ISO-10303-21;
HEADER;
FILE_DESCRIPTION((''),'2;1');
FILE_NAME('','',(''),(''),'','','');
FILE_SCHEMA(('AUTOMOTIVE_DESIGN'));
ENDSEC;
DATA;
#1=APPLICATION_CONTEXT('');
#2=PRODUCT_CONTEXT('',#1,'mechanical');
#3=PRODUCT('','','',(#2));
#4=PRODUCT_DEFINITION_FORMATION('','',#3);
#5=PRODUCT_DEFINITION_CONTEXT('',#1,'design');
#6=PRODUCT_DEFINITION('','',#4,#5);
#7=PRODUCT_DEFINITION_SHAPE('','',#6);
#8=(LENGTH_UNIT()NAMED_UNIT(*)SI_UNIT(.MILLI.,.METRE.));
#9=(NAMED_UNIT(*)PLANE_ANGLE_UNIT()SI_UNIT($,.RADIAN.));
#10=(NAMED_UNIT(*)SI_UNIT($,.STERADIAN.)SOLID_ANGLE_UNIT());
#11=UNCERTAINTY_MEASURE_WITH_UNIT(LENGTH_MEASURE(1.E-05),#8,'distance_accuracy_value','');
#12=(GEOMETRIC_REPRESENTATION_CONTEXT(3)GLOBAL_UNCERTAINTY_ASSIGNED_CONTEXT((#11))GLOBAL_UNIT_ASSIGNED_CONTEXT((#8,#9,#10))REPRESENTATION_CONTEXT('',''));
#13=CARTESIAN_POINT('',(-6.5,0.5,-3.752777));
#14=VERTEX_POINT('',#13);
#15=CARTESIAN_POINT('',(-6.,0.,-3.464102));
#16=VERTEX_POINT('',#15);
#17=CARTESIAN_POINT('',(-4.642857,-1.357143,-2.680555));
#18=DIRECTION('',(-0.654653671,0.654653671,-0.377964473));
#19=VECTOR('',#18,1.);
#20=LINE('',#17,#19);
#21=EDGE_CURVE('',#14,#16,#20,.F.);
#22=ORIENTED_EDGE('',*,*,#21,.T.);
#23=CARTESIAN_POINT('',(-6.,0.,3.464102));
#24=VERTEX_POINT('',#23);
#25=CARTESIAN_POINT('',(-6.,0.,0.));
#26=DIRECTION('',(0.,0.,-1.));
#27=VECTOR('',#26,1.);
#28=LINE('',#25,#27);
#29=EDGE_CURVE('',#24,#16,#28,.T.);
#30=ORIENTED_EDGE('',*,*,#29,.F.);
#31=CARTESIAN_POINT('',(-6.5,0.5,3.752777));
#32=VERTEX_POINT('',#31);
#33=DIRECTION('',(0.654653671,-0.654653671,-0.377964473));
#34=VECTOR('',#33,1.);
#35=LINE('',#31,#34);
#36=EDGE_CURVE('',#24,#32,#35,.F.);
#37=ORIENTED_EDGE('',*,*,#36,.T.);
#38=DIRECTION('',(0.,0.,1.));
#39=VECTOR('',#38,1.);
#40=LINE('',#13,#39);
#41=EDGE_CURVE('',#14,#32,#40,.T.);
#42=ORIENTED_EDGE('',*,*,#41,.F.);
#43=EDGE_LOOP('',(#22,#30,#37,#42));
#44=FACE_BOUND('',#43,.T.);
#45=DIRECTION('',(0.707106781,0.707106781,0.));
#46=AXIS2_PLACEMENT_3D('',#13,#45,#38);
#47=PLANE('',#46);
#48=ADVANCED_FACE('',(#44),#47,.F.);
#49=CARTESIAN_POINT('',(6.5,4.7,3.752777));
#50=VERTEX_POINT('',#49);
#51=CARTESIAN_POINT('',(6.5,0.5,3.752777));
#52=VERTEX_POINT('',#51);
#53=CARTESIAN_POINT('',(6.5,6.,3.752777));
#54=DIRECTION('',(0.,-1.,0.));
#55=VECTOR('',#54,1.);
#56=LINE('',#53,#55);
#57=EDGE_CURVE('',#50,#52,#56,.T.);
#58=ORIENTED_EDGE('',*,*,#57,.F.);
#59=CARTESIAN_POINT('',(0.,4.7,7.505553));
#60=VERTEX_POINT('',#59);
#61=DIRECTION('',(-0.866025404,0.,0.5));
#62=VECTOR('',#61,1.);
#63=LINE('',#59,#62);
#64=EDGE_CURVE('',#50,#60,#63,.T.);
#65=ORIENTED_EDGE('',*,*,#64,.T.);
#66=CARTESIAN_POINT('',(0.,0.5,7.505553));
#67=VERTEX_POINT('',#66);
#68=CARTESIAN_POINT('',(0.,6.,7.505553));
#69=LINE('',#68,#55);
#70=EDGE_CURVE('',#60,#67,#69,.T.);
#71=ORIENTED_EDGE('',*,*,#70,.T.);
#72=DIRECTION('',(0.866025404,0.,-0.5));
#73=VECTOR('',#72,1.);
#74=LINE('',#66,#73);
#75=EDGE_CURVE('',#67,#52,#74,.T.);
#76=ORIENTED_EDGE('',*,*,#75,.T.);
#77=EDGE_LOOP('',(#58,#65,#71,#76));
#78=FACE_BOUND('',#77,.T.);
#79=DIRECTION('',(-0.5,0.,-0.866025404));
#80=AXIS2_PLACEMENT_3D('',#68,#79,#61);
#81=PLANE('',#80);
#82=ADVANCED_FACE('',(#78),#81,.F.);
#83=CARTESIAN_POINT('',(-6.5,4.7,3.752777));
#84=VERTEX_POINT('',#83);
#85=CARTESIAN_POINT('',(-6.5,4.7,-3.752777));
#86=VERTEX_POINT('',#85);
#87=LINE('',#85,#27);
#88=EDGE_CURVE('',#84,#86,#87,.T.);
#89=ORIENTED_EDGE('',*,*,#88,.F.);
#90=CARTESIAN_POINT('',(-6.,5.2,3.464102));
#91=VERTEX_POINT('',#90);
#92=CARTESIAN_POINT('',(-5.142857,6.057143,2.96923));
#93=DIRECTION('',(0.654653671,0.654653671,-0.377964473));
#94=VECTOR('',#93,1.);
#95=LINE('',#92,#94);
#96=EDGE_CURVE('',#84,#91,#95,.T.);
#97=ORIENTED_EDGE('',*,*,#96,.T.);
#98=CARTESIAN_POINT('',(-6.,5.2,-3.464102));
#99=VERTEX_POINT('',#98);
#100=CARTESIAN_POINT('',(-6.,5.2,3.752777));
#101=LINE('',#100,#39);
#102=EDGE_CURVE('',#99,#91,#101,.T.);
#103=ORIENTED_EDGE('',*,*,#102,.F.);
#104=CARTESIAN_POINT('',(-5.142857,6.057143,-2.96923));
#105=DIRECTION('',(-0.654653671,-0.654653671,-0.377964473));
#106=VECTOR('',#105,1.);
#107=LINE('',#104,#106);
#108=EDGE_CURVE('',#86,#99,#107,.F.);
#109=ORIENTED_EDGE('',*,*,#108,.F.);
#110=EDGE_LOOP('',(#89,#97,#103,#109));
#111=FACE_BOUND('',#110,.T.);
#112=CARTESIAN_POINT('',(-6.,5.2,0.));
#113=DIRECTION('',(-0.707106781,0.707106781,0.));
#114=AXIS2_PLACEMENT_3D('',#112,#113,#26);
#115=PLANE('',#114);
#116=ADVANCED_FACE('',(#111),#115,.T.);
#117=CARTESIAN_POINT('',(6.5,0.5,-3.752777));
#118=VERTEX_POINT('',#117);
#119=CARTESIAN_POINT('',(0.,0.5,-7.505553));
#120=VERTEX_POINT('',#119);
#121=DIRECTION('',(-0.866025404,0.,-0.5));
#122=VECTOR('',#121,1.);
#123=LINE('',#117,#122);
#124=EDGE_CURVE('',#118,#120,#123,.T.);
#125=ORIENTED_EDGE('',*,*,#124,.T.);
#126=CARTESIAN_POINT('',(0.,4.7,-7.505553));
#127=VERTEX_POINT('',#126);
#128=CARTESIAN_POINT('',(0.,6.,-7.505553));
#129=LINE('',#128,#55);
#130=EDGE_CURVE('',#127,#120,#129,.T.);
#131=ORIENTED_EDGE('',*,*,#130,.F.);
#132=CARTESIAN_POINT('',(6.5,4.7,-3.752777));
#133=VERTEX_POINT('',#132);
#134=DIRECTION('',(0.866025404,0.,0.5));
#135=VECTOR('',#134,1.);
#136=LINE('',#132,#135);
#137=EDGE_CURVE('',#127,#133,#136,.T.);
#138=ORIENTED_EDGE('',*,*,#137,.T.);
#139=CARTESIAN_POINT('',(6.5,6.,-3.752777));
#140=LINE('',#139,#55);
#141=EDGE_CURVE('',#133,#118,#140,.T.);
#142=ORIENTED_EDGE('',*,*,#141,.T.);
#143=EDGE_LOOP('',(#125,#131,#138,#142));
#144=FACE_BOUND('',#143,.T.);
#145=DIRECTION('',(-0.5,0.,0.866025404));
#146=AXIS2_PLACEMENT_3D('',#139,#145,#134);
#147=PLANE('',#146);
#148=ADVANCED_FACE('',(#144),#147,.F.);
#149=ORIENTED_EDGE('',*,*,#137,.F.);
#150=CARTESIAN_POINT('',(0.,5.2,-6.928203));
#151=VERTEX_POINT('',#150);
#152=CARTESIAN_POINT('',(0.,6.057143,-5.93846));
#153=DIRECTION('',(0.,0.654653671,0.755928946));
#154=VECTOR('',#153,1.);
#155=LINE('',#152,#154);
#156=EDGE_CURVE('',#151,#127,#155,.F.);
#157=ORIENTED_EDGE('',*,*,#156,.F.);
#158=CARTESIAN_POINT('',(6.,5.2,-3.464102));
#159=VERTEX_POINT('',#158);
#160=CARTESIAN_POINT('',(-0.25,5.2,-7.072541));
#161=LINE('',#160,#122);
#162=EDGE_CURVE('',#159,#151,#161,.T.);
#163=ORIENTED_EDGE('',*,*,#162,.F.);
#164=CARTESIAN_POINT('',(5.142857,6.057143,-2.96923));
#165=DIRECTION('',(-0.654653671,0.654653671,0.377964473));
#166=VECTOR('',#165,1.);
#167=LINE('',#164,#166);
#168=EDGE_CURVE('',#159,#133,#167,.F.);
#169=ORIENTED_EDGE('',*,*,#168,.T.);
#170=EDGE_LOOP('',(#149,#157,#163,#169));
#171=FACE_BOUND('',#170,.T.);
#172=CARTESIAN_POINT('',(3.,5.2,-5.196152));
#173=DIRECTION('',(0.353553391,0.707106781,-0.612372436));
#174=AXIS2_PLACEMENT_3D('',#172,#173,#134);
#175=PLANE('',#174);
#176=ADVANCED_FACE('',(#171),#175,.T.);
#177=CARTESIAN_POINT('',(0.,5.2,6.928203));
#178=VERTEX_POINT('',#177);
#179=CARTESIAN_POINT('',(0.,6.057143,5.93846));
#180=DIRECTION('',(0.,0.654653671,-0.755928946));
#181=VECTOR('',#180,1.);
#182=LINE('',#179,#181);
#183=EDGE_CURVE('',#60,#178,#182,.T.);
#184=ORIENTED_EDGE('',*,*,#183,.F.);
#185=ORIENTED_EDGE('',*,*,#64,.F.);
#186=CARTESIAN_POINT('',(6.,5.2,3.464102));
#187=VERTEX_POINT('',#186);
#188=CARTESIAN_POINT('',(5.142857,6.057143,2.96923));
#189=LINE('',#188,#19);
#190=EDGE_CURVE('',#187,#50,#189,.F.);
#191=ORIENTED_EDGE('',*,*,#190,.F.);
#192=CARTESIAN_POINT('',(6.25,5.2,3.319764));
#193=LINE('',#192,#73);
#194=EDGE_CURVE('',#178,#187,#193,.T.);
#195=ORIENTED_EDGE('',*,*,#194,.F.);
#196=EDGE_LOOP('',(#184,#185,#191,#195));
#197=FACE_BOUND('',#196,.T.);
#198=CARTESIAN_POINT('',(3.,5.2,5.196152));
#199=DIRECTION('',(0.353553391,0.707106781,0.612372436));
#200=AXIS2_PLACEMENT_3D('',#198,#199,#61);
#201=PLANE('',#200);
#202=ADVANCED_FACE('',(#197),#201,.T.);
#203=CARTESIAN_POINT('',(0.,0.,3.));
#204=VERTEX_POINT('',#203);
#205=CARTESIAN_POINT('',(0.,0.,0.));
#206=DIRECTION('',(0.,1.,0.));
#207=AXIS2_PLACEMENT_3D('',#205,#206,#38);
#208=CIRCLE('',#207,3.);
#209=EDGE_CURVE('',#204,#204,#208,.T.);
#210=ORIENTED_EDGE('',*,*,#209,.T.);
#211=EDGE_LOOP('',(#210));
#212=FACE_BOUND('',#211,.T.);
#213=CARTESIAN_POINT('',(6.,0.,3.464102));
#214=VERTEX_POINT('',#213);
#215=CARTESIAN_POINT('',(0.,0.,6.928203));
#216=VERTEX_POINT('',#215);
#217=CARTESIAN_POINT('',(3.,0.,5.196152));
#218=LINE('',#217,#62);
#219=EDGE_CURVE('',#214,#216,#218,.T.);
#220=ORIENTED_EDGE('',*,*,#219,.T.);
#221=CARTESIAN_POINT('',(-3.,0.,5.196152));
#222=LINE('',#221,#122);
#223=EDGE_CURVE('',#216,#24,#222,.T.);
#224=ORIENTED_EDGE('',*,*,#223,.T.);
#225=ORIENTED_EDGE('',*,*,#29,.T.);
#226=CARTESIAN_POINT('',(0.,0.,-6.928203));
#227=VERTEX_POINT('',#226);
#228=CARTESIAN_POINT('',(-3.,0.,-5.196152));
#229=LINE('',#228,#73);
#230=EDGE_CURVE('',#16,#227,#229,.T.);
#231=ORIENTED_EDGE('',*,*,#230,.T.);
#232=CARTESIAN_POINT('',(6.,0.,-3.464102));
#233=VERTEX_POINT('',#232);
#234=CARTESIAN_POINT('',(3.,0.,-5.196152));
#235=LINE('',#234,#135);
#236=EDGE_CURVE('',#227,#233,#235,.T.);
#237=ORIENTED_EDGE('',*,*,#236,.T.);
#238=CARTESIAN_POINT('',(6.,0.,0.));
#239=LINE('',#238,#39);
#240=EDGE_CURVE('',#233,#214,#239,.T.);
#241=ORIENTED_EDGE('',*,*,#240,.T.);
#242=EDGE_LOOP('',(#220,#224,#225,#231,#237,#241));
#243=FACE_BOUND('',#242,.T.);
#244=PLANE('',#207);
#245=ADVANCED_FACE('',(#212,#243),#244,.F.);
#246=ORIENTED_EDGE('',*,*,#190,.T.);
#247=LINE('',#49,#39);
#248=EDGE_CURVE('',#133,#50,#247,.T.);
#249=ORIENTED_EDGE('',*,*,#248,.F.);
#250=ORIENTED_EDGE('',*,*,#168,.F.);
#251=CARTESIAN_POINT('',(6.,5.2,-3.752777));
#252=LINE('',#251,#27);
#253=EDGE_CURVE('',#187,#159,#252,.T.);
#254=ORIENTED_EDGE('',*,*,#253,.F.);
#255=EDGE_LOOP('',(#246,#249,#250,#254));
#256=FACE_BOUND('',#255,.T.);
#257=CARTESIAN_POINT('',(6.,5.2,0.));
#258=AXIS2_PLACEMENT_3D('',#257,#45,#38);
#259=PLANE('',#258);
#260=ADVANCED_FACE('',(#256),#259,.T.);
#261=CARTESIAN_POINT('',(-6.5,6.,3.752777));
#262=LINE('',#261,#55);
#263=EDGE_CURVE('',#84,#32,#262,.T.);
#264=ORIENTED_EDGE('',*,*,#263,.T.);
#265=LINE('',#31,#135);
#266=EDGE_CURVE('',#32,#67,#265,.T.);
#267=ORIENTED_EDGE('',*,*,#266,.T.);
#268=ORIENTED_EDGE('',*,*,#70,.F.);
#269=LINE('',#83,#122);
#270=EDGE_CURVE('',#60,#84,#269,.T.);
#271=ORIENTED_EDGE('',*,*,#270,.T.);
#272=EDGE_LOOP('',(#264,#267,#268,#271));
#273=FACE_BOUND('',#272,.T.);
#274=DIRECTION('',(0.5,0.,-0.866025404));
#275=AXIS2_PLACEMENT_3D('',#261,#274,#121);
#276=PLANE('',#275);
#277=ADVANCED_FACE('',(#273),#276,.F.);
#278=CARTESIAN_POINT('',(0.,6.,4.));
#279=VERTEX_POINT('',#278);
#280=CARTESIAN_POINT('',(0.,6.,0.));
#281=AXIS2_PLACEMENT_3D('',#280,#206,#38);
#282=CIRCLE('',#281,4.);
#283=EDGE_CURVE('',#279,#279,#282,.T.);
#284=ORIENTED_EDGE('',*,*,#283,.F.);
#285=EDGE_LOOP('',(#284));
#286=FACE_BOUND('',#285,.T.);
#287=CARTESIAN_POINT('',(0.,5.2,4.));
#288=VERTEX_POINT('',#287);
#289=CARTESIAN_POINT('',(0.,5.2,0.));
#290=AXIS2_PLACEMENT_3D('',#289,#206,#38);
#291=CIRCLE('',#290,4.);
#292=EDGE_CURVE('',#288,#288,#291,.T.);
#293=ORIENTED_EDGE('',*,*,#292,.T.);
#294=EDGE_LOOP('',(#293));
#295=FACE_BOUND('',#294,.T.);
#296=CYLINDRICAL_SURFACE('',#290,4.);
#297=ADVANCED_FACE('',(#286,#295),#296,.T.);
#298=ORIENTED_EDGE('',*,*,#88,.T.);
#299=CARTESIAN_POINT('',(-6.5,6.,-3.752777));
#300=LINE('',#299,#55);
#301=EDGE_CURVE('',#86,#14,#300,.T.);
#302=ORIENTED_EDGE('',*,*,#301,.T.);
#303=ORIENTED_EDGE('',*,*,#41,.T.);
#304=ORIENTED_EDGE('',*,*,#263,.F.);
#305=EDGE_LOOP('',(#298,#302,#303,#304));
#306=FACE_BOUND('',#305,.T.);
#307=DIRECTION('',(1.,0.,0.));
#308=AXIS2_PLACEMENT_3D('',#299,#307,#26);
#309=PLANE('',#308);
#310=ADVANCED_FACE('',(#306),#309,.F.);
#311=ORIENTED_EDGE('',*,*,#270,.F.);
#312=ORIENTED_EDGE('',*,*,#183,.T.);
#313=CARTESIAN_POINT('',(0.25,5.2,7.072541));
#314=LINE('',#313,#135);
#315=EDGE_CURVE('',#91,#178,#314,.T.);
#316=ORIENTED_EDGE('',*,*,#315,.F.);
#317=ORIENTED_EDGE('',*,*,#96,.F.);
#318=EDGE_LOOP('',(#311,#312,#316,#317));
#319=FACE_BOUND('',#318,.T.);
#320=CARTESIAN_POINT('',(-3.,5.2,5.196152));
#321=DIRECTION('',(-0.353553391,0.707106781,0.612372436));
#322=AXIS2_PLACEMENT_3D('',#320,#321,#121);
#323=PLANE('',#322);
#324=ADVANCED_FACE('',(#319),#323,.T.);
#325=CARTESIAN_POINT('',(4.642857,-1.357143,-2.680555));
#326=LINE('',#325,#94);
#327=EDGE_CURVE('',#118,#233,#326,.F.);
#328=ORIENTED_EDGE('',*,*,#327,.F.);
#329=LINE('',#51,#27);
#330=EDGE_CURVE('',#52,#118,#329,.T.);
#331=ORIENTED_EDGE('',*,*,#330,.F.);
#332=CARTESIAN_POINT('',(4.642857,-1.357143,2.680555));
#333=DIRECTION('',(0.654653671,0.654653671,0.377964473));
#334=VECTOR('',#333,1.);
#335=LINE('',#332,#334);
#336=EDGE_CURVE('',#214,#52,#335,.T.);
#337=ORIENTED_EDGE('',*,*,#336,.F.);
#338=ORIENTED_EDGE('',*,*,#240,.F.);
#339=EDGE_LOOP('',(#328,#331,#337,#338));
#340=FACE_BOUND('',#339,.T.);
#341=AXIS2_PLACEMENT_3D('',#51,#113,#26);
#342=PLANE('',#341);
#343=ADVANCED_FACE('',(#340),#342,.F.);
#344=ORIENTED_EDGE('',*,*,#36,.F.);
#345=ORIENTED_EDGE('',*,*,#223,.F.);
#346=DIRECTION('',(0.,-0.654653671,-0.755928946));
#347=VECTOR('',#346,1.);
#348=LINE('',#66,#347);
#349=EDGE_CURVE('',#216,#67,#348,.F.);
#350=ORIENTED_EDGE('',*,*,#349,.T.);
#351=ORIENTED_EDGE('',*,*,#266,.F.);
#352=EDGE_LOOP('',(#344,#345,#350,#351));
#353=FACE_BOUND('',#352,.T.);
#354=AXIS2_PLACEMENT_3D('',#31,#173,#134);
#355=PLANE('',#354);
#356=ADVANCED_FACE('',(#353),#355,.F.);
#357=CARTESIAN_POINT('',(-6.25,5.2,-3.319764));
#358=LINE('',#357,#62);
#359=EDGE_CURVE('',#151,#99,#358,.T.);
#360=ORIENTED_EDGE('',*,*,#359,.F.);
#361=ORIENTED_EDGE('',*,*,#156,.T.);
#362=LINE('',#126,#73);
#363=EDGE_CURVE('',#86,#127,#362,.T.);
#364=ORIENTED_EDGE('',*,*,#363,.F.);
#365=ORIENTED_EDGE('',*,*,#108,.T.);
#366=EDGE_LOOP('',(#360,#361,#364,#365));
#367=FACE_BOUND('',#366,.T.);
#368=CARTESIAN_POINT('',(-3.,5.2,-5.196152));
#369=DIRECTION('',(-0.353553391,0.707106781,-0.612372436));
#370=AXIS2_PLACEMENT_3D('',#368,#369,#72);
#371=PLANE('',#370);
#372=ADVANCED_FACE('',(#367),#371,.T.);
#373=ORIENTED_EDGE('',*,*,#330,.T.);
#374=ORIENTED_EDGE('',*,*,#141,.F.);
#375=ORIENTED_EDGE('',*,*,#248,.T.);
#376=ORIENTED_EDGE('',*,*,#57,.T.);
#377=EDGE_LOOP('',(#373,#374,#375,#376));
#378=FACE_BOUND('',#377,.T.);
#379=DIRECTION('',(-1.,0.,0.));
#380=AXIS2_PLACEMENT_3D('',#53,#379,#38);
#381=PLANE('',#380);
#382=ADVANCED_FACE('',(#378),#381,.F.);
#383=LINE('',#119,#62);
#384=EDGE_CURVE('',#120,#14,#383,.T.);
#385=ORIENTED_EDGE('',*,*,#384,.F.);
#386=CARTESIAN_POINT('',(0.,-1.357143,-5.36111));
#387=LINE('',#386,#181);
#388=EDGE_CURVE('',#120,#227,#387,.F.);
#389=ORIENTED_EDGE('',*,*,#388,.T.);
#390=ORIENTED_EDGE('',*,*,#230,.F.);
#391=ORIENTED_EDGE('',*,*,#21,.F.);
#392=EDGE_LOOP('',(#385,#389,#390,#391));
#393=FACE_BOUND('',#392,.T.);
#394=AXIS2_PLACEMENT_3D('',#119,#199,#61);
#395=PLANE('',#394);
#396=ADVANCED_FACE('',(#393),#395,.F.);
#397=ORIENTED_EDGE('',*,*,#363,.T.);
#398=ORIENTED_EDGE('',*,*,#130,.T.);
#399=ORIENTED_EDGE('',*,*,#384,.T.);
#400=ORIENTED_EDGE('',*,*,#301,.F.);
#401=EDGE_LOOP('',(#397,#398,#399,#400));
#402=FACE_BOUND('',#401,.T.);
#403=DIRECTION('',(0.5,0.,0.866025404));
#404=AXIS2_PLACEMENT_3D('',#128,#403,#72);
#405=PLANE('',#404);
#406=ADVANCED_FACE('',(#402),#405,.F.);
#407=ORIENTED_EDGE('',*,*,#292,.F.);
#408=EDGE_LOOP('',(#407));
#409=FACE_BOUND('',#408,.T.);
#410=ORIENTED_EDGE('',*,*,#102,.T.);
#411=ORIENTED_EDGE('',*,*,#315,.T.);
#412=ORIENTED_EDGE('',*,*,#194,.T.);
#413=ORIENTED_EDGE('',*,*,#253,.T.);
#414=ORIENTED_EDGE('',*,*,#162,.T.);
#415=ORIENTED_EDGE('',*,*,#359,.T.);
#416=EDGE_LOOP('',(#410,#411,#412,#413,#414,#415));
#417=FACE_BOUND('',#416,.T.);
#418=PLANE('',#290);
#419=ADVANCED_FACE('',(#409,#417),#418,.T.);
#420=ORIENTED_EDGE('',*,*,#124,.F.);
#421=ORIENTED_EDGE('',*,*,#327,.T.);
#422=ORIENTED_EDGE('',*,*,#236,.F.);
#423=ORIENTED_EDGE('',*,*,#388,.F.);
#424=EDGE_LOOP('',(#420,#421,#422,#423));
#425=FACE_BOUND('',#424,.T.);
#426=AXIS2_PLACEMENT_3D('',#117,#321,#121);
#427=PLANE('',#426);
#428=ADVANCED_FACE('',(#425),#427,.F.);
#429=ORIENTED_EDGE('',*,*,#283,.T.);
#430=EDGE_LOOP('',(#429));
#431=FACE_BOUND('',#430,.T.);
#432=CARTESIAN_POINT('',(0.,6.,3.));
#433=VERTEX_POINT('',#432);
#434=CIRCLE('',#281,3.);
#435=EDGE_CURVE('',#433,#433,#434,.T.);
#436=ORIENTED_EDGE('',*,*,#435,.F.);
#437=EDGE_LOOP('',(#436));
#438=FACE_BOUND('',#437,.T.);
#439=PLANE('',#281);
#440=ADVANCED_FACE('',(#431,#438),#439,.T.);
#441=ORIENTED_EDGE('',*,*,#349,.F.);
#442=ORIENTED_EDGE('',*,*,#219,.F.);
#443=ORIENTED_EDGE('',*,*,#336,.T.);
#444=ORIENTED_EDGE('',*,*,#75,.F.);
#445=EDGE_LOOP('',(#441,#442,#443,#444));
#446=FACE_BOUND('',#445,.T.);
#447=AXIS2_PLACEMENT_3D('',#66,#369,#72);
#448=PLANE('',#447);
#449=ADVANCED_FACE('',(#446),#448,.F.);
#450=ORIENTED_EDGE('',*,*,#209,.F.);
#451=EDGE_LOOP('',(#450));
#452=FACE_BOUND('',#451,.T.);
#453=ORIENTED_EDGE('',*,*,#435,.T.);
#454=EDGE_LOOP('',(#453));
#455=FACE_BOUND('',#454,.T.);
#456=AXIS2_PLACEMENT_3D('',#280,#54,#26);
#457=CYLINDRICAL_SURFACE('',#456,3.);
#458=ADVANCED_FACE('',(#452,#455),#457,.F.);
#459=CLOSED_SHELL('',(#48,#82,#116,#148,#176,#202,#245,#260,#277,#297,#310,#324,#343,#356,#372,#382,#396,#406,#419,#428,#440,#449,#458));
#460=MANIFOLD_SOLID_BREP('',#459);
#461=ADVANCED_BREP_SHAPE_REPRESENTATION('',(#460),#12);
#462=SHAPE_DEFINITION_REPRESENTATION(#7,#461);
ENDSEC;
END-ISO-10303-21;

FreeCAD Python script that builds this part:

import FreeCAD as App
import Part
import Sketcher
Q = App.Units.Quantity


def edges_at(feature, points):
    """Names of the edges that pass closest to the given points."""
    edges = feature.Shape.Edges
    near = lambda p: min(range(len(edges)), key=lambda i: edges[i].distToShape(Part.Vertex(*p))[0])
    return sorted({f"Edge{near(p) + 1}" for p in points})

doc = App.newDocument("Part")
body = doc.addObject("PartDesign::Body", "Body")

# Sketch on XZ plane
sketch1 = body.newObject("Sketcher::SketchObject", "Sketch")
sketch1.AttachmentSupport = (doc.getObject("XZ_Plane"), [""])
sketch1.MapMode = "FlatFace"
sketch1.addGeometry([
    Part.LineSegment(App.Vector(0, 7.505553, 0), App.Vector(6.5, 3.752777, 0)),  # 0
    Part.LineSegment(App.Vector(6.5, 3.752777, 0), App.Vector(6.5, -3.752777, 0)),  # 1
    Part.LineSegment(App.Vector(6.5, -3.752777, 0), App.Vector(0, -7.505553, 0)),  # 2
    Part.LineSegment(App.Vector(0, -7.505553, 0), App.Vector(-6.5, -3.752777, 0)),  # 3
    Part.LineSegment(App.Vector(-6.5, -3.752777, 0), App.Vector(-6.5, 3.752777, 0)),  # 4
    Part.LineSegment(App.Vector(-6.5, 3.752777, 0), App.Vector(0, 7.505553, 0)),  # 5
    Part.Circle(App.Vector(0, 0, 0), App.Vector(0, 0, 1), 3),  # 6
], False)
sketch1.addConstraint([
    Sketcher.Constraint("Coincident", 0, 2, 1, 1),
    Sketcher.Constraint("Coincident", 1, 2, 2, 1),
    Sketcher.Constraint("Coincident", 2, 2, 3, 1),
    Sketcher.Constraint("Coincident", 3, 2, 4, 1),
    Sketcher.Constraint("Coincident", 4, 2, 5, 1),
    Sketcher.Constraint("Coincident", 5, 2, 0, 1),
    Sketcher.Constraint("Vertical", 1),
    Sketcher.Constraint("Vertical", 4),
    Sketcher.Constraint("Coincident", 6, 3, -1, 1),
    Sketcher.Constraint("Symmetric", 0, 2, 3, 2, -1, 1),
    Sketcher.Constraint("Symmetric", 2, 2, 5, 2, -1, 1),
    Sketcher.Constraint("PointOnObject", 2, 2, -2),
    Sketcher.Constraint("Parallel", 2, 5),
    Sketcher.Constraint("Horizontal", 1, 2, 3, 2),
    Sketcher.Constraint("Diameter", 6, 6.0),
    Sketcher.Constraint("Angle", 0, Q("-30 deg")),
    Sketcher.Constraint("DistanceX", 3, 2, 1, 2, 13.0),
    Sketcher.Constraint("DistanceY", 1, 2, 1, 1, 7.505554),
])
pad1 = body.newObject("PartDesign::Pad", "Pad")
pad1.Profile = sketch1
pad1.Length = 6
pad1.Reversed = True

# Sketch on XZ plane
sketch2 = body.newObject("Sketcher::SketchObject", "Sketch001")
sketch2.AttachmentSupport = (doc.getObject("XZ_Plane"), [""])
sketch2.MapMode = "FlatFace"
sketch2.AttachmentOffset = App.Placement(App.Vector(0, 0, -6), App.Rotation())
sketch2.addGeometry([
    Part.LineSegment(App.Vector(-6.5, 3.752777, 0), App.Vector(0, 7.505553, 0)),  # 0
    Part.LineSegment(App.Vector(0, 7.505553, 0), App.Vector(6.5, 3.752777, 0)),  # 1
    Part.LineSegment(App.Vector(6.5, 3.752777, 0), App.Vector(6.5, -3.752777, 0)),  # 2
    Part.LineSegment(App.Vector(6.5, -3.752777, 0), App.Vector(0, -7.505553, 0)),  # 3
    Part.LineSegment(App.Vector(0, -7.505553, 0), App.Vector(-6.5, -3.752777, 0)),  # 4
    Part.LineSegment(App.Vector(-6.5, -3.752777, 0), App.Vector(-6.5, 3.752777, 0)),  # 5
    Part.Circle(App.Vector(0, 0, 0), App.Vector(0, 0, 1), 4),  # 6
], False)
sketch2.addConstraint([
    Sketcher.Constraint("Coincident", 0, 2, 1, 1),
    Sketcher.Constraint("Coincident", 1, 2, 2, 1),
    Sketcher.Constraint("Coincident", 2, 2, 3, 1),
    Sketcher.Constraint("Coincident", 3, 2, 4, 1),
    Sketcher.Constraint("Coincident", 4, 2, 5, 1),
    Sketcher.Constraint("Coincident", 5, 2, 0, 1),
    Sketcher.Constraint("Vertical", 2),
    Sketcher.Constraint("Vertical", 5),
    Sketcher.Constraint("Coincident", 6, 3, -1, 1),
    Sketcher.Constraint("Symmetric", 0, 2, 3, 2, -1, 1),
    Sketcher.Constraint("Symmetric", 1, 2, 4, 2, -1, 1),
    Sketcher.Constraint("PointOnObject", 0, 2, -2),
    Sketcher.Constraint("Parallel", 0, 3),
    Sketcher.Constraint("Horizontal", 2, 2, 4, 2),
    Sketcher.Constraint("Diameter", 6, 8.0),
    Sketcher.Constraint("Angle", 0, Q("30 deg")),
    Sketcher.Constraint("DistanceX", 4, 2, 2, 2, 13.0),
    Sketcher.Constraint("DistanceY", 2, 2, 2, 1, 7.505554),
])
pocket1 = body.newObject("PartDesign::Pocket", "Pocket")
pocket1.Profile = sketch2
pocket1.Length = 0.8
pocket1.Reversed = True
doc.recompute()

chamfer = body.newObject("PartDesign::Chamfer", "Chamfer")
chamfer.Base = (pocket1, edges_at(pocket1, [
    (-6.5, 5.2, 0),
    (-3.25, 5.2, -5.629),
    (3.25, 5.2, -5.629),
    (6.5, 5.2, 0),
    (3.25, 5.2, 5.629),
    (-3.25, 5.2, 5.629),
    (-6.5, 0, 0),
    (-3.25, 0, -5.629),
    (3.25, 0, -5.629),
    (6.5, 0, 0),
    (3.25, 0, 5.629),
    (-3.25, 0, 5.629),
]))
chamfer.Size = 0.5

doc.recompute()
